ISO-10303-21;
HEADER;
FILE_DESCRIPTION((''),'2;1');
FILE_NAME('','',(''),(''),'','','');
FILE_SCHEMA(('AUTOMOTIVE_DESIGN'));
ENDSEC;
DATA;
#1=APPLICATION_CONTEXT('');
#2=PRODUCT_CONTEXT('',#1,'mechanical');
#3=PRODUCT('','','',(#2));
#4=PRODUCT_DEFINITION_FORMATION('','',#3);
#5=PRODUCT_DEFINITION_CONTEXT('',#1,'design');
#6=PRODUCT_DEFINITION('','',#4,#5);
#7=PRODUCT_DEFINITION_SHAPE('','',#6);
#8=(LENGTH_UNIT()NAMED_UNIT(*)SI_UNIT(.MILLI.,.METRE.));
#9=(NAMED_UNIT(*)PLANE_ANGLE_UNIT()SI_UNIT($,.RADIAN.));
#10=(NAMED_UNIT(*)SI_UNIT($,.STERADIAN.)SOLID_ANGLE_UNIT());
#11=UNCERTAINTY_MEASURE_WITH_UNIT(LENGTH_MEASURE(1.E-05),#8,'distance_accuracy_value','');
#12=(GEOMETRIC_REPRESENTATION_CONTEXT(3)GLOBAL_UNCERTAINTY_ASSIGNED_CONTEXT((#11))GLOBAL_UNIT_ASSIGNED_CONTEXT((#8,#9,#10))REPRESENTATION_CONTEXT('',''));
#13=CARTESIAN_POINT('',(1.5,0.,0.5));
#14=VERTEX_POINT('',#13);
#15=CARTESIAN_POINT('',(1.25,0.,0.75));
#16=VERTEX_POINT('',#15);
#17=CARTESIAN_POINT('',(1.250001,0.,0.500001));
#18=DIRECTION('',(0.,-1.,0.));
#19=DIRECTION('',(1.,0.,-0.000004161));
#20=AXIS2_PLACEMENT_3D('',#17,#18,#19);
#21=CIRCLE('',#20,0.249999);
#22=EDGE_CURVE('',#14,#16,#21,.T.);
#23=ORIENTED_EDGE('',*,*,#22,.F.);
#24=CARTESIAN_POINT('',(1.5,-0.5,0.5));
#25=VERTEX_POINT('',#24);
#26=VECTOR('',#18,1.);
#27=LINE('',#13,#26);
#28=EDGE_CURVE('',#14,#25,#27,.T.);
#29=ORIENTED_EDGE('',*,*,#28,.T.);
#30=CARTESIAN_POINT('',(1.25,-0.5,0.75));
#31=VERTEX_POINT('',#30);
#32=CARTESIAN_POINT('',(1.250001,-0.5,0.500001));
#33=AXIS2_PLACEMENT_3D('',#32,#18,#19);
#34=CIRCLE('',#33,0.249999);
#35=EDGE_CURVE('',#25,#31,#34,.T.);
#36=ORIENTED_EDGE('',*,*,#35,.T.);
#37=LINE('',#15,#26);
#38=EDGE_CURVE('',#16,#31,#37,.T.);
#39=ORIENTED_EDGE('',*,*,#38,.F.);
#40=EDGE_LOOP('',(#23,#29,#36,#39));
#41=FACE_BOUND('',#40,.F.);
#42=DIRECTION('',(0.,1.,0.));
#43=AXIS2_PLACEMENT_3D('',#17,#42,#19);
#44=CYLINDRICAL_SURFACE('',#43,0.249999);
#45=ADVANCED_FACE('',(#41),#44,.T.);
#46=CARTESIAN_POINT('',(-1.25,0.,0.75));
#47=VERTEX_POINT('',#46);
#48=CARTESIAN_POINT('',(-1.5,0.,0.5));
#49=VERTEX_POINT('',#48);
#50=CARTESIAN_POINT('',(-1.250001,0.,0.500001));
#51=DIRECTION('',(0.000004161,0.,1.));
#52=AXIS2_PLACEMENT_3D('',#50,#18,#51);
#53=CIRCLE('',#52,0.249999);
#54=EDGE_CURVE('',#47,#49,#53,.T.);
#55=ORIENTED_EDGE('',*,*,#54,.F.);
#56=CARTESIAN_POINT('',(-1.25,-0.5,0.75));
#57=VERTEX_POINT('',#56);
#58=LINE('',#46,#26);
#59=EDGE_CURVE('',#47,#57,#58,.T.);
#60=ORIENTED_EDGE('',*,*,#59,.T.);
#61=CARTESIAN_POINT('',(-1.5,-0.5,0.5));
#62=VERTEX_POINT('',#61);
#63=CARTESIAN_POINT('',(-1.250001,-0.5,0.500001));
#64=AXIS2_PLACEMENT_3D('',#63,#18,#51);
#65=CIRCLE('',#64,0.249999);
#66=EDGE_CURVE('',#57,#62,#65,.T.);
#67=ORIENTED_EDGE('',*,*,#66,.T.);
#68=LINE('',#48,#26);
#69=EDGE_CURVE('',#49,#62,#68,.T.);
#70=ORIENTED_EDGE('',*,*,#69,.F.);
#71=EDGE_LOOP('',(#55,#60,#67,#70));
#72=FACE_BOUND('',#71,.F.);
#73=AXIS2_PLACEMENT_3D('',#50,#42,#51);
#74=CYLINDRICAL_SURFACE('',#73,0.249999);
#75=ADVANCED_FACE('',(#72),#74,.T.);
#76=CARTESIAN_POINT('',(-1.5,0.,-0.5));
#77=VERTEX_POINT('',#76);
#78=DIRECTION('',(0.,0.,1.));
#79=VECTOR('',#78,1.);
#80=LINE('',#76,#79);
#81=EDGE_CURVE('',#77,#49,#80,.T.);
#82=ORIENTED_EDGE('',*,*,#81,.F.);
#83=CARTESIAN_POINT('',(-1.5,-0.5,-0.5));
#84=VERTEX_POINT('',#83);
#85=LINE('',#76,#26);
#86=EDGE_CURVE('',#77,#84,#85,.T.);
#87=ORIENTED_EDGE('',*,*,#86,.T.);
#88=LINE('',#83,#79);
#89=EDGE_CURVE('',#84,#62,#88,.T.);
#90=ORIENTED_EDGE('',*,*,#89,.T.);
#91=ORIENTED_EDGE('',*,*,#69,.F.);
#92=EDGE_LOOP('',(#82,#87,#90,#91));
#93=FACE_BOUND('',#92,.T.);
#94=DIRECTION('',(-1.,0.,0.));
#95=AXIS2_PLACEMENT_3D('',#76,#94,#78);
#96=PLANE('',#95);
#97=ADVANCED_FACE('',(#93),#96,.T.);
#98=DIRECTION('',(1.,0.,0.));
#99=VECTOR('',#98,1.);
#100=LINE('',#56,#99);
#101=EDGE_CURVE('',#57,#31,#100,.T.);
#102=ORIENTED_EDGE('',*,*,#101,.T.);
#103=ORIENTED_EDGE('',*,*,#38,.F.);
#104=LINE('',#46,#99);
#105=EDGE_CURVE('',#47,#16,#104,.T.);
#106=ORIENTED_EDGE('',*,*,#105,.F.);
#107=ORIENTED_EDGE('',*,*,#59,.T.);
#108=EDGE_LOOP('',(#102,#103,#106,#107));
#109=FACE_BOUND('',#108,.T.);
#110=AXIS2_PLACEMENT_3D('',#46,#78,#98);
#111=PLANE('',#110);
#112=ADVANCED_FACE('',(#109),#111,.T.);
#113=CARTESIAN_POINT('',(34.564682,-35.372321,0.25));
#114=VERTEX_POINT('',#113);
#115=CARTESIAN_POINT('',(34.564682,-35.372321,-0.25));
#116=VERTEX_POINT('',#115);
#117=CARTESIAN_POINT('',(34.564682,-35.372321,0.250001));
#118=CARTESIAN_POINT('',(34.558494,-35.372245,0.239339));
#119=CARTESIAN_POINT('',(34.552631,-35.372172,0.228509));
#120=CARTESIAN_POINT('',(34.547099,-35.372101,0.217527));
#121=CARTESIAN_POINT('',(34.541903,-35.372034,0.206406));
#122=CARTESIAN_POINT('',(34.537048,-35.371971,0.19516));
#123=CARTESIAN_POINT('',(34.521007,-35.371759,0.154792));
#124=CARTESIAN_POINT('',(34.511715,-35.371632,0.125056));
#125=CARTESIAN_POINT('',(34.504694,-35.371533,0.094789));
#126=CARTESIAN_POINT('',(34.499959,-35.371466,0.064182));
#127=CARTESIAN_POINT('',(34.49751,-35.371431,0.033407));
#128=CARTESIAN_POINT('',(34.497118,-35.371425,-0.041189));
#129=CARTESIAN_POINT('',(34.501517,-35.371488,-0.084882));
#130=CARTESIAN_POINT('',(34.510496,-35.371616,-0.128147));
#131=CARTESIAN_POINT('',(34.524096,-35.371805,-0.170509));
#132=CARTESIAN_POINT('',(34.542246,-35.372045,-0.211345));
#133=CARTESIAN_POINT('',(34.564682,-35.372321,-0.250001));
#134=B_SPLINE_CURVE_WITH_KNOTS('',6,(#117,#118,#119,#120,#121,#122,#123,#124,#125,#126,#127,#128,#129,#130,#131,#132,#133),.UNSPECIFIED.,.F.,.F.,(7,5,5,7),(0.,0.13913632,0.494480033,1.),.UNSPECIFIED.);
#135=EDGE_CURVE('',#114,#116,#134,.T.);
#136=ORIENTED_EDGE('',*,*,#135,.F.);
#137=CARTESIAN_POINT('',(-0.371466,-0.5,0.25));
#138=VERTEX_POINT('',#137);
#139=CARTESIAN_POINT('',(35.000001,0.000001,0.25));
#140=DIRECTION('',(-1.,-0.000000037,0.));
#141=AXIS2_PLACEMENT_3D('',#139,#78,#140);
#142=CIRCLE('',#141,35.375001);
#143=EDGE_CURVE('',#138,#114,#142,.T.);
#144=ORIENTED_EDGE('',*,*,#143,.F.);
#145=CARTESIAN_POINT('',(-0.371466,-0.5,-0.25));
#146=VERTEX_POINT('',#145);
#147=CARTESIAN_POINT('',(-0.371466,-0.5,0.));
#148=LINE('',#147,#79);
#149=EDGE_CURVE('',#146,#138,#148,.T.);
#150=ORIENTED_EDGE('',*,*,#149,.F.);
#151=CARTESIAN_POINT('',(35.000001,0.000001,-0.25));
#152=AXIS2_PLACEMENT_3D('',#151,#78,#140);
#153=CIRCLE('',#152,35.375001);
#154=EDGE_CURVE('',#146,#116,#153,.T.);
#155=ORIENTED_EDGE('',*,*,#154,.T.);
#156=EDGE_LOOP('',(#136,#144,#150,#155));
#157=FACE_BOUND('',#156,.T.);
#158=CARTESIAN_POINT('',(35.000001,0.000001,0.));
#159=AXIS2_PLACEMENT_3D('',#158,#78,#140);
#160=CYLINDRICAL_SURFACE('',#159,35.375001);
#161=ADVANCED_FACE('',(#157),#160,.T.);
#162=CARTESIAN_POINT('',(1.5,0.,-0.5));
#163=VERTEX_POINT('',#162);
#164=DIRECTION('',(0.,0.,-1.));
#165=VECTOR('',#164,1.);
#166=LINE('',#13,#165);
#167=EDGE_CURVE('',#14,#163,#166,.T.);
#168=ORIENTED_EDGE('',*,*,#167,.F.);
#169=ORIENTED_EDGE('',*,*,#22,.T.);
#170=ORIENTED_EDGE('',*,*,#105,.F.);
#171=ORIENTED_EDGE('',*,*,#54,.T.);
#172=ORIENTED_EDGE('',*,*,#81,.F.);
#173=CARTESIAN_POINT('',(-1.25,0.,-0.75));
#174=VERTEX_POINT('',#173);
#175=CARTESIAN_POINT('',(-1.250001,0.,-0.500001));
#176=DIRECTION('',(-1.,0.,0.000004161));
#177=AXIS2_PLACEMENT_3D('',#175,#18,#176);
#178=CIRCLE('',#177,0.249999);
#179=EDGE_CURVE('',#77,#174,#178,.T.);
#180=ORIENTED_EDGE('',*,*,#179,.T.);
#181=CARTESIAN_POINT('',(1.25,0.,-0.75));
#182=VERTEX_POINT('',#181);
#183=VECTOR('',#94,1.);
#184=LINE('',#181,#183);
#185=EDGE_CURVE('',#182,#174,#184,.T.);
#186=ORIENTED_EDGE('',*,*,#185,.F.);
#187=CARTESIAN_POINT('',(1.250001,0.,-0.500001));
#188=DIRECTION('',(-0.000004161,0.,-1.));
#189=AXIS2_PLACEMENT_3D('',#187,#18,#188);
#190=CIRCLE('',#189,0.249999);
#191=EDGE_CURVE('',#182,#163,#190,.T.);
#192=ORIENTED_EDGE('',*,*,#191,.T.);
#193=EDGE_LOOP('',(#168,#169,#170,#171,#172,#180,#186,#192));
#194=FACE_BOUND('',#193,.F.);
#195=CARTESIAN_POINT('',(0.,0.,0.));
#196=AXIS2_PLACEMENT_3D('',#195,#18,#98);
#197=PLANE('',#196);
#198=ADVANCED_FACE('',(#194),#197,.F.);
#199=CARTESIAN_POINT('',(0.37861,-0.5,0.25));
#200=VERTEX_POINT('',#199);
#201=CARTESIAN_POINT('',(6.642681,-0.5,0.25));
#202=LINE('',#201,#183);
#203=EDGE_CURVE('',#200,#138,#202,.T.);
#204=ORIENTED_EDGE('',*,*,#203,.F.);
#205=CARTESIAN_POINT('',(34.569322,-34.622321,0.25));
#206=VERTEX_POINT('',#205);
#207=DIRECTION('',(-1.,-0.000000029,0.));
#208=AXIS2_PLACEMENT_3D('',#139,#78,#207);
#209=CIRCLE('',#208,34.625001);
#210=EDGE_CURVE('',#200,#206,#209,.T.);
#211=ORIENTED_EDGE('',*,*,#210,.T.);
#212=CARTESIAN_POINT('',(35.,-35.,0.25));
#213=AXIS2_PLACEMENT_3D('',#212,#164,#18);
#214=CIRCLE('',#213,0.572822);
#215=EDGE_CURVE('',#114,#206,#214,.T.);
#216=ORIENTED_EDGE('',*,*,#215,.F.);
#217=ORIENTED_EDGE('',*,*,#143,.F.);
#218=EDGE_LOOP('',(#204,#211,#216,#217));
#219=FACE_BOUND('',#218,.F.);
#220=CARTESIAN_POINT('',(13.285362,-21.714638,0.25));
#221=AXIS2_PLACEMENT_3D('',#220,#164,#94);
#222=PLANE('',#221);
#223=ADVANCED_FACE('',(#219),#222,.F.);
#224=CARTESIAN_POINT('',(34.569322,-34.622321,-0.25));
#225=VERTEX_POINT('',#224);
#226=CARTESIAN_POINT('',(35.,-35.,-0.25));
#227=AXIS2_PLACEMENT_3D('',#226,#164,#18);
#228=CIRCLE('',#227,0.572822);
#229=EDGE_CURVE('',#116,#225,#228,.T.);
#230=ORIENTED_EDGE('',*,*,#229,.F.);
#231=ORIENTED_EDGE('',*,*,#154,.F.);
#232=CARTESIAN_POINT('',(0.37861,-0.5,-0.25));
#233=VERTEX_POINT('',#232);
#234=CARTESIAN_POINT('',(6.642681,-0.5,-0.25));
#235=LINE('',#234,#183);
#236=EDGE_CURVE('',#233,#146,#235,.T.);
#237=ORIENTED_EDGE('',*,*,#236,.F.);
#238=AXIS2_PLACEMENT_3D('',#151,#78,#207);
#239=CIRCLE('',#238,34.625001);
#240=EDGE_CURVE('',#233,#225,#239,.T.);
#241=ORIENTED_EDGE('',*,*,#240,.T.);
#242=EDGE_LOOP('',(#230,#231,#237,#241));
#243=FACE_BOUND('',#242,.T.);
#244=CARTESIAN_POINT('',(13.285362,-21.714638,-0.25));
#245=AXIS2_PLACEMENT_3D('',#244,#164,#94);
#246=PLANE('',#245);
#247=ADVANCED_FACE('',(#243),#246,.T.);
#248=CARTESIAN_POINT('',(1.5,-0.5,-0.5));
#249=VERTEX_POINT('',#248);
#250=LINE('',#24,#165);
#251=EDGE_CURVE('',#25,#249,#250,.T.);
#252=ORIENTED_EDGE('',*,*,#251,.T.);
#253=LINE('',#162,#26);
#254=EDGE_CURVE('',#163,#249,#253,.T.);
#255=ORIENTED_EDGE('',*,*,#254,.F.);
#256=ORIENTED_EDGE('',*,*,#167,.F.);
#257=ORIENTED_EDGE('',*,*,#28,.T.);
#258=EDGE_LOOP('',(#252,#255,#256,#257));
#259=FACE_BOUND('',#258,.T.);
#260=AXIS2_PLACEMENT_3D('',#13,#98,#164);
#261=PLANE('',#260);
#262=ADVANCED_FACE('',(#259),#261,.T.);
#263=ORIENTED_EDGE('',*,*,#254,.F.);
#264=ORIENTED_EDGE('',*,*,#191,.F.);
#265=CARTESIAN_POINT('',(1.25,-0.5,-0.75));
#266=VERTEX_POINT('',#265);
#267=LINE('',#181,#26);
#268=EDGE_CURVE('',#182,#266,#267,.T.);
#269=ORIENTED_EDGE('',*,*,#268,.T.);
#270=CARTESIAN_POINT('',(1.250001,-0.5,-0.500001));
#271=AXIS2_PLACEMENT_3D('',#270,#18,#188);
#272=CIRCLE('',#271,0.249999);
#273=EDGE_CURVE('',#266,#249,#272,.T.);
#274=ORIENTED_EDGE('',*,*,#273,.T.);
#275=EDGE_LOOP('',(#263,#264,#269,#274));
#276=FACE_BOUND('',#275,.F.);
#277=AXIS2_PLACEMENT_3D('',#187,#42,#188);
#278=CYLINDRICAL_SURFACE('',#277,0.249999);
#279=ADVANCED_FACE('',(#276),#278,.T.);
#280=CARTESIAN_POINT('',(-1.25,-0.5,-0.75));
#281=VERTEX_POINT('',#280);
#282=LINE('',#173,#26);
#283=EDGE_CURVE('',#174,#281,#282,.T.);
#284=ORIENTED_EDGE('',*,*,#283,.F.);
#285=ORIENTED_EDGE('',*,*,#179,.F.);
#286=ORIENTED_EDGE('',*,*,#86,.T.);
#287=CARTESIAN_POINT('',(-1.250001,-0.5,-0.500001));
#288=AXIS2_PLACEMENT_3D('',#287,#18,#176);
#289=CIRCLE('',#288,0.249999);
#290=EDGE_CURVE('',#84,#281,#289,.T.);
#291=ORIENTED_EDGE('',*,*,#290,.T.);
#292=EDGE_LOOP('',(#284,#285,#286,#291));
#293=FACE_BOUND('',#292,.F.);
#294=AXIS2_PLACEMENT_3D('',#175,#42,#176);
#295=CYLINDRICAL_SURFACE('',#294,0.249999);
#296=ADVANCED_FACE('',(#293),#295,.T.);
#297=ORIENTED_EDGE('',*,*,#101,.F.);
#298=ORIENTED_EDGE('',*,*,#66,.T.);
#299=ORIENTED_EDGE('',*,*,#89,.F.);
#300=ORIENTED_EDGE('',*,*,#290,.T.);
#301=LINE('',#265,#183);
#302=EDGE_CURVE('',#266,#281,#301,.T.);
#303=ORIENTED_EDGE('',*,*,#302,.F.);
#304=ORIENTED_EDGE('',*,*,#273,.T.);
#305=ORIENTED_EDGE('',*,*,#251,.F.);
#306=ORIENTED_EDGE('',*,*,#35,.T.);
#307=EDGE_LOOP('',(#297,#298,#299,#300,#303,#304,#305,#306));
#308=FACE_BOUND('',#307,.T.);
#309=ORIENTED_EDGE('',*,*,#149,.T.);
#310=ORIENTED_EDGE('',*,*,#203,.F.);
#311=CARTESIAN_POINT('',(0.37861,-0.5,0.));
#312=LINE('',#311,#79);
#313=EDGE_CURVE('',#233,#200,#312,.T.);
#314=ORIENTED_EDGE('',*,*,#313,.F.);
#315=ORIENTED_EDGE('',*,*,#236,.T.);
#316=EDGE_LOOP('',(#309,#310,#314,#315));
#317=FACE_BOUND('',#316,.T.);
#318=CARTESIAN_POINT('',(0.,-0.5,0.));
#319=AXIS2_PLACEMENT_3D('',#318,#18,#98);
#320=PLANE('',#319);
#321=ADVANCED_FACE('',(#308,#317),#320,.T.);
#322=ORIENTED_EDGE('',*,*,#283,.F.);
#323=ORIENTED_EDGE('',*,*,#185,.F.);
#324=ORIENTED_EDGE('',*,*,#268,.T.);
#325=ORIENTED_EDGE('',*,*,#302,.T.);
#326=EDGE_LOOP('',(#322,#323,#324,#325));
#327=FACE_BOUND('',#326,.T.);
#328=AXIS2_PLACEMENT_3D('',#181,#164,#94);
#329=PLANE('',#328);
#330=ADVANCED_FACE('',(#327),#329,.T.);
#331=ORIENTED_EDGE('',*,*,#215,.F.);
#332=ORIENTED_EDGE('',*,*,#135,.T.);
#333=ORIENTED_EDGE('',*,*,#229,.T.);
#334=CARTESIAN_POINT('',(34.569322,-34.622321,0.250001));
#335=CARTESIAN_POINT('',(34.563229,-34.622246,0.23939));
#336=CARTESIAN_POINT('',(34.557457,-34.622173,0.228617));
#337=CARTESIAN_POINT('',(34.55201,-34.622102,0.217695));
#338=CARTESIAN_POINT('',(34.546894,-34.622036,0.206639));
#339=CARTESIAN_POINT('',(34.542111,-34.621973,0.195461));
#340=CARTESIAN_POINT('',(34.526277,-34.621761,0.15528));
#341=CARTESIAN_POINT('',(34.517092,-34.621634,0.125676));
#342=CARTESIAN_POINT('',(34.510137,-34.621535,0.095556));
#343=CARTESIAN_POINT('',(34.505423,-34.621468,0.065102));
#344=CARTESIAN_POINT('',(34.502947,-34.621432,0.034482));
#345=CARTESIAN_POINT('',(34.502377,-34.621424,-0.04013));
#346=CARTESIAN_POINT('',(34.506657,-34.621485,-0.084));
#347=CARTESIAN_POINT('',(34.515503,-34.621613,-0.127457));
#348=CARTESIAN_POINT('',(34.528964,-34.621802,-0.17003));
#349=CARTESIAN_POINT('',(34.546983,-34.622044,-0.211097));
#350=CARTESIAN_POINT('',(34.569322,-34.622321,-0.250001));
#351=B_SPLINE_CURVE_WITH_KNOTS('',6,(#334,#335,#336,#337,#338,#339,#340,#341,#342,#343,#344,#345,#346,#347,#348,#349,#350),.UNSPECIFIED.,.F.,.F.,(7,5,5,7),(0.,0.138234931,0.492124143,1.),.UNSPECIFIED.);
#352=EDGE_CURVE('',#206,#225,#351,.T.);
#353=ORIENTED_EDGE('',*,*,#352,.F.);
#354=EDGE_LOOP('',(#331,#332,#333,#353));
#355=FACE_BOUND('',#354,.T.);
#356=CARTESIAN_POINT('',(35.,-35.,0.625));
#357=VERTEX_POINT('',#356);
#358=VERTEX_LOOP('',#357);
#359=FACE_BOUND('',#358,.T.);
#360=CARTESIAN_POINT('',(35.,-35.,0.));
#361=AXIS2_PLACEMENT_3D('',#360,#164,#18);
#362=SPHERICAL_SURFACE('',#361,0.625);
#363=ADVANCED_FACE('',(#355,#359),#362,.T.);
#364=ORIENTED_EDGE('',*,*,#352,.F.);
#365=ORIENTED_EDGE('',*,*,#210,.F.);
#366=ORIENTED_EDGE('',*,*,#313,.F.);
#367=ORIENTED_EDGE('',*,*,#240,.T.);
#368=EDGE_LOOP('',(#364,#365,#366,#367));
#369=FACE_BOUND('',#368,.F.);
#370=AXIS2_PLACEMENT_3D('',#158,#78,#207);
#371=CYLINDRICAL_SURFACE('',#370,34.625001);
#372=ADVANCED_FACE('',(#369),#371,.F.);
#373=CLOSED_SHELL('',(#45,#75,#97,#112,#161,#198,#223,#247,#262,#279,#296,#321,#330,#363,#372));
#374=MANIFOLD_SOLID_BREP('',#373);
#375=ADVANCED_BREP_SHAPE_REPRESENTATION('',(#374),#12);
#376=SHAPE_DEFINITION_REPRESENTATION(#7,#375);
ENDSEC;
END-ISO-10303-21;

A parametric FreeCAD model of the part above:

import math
import FreeCAD as App
import Part
import Sketcher

doc = App.newDocument("Part")
body = doc.addObject("PartDesign::Body", "Body")

sketch1 = body.newObject("Sketcher::SketchObject", "Sketch")
sketch1.AttachmentSupport = (doc.getObject("XY_Plane"), [""])
sketch1.MapMode = "FlatFace"
sketch1.addGeometry(Part.LineSegment(App.Vector(0.4, 0, 0), App.Vector(-0.4, 0, 0)), False)
sketch1.addGeometry(Part.ArcOfCircle(Part.Circle(App.Vector(35, 0, 0), App.Vector(0, 0, 1), 35.4), math.radians(-180), math.radians(-90)), False)
sketch1.addGeometry(Part.LineSegment(App.Vector(35, -35.4, 0), App.Vector(35, -34.6, 0)), False)
sketch1.addGeometry(Part.ArcOfCircle(Part.Circle(App.Vector(35, 0, 0), App.Vector(0, 0, 1), 34.6), math.radians(-180), math.radians(-90)), False)
sketch1.addConstraint(Sketcher.Constraint("Coincident", 0, 2, 1, 1))
sketch1.addConstraint(Sketcher.Constraint("Coincident", 1, 2, 2, 1))
sketch1.addConstraint(Sketcher.Constraint("Coincident", 2, 2, 3, 2))
sketch1.addConstraint(Sketcher.Constraint("Coincident", 3, 1, 0, 1))
sketch1.addConstraint(Sketcher.Constraint("Horizontal", 0))
sketch1.addConstraint(Sketcher.Constraint("Vertical", 2))
sketch1.addConstraint(Sketcher.Constraint("Coincident", 3, 3, 1, 3))
sketch1.addConstraint(Sketcher.Constraint("Symmetric", 0, 2, 3, 1, -1, 1))
sketch1.addConstraint(Sketcher.Constraint("PointOnObject", 1, 3, -1))
sketch1.addConstraint(Sketcher.Constraint("Vertical", 3, 3, 1, 2))
sketch1.addConstraint(Sketcher.Constraint("DistanceX", -1, 1, 1, 3, 35.000001))
sketch1.addConstraint(Sketcher.Constraint("Radius", 1, 35.375001))
pad1 = body.newObject("PartDesign::Pad", "Pad")
pad1.Profile = sketch1
pad1.Length = 0.5
pad1.Midplane = True

sketch2 = body.newObject("Sketcher::SketchObject", "Sketch001")
sketch2.AttachmentSupport = (doc.getObject("YZ_Plane"), [""])
sketch2.MapMode = "FlatFace"
sketch2.AttachmentOffset = App.Placement(App.Vector(0, 0, 35), App.Rotation())
sketch2.addGeometry(Part.ArcOfCircle(Part.Circle(App.Vector(-35, 0, 0), App.Vector(0, 0, 1), 0.6), math.radians(90), math.radians(270)), False)
sketch2.addGeometry(Part.LineSegment(App.Vector(-35, -0.6, 0), App.Vector(-35, 0.6, 0)), False)
sketch2.addGeometry(Part.LineSegment(App.Vector(-35, 0.6, 0), App.Vector(-35, -0.6, 0)), True)
sketch2.addConstraint(Sketcher.Constraint("Coincident", 0, 1, 1, 2))
sketch2.addConstraint(Sketcher.Constraint("Coincident", 1, 1, 0, 2))
sketch2.addConstraint(Sketcher.Constraint("Vertical", 1))
sketch2.addConstraint(Sketcher.Constraint("Vertical", 2))
sketch2.addConstraint(Sketcher.Constraint("Coincident", 2, 1, 0, 1))
sketch2.addConstraint(Sketcher.Constraint("PointOnObject", 0, 3, -1))
sketch2.addConstraint(Sketcher.Constraint("Equal", 1, 2))
sketch2.addConstraint(Sketcher.Constraint("DistanceX", 0, 3, -1, 1, 35.0))
sketch2.addConstraint(Sketcher.Constraint("DistanceX", 0, 1, -1, 1, 35.0))
sketch2.addConstraint(Sketcher.Constraint("Radius", 0, 0.625))
revolution = body.newObject("PartDesign::Revolution", "Revolution")
revolution.Profile = sketch2
revolution.ReferenceAxis = (sketch2, ["Axis0"])
revolution.Angle = 360

sketch3 = body.newObject("Sketcher::SketchObject", "Sketch002")
sketch3.AttachmentSupport = (doc.getObject("XZ_Plane"), [""])
sketch3.MapMode = "FlatFace"
sketch3.addGeometry(Part.ArcOfCircle(Part.Circle(App.Vector(-1.25, 0.5, 0), App.Vector(0, 0, 1), 0.25), math.radians(90), math.radians(180)), False)
sketch3.addGeometry(Part.LineSegment(App.Vector(-1.5, 0.5, 0), App.Vector(-1.5, -0.5, 0)), False)
sketch3.addGeometry(Part.ArcOfCircle(Part.Circle(App.Vector(-1.25, -0.5, 0), App.Vector(0, 0, 1), 0.25), math.radians(180), math.radians(270)), False)
sketch3.addGeometry(Part.LineSegment(App.Vector(-1.25, -0.75, 0), App.Vector(1.25, -0.75, 0)), False)
sketch3.addGeometry(Part.ArcOfCircle(Part.Circle(App.Vector(1.25, -0.5, 0), App.Vector(0, 0, 1), 0.25), math.radians(-90), math.radians(0)), False)
sketch3.addGeometry(Part.LineSegment(App.Vector(1.5, -0.5, 0), App.Vector(1.5, 0.5, 0)), False)
sketch3.addGeometry(Part.ArcOfCircle(Part.Circle(App.Vector(1.25, 0.5, 0), App.Vector(0, 0, 1), 0.25), math.radians(0), math.radians(90)), False)
sketch3.addGeometry(Part.LineSegment(App.Vector(1.25, 0.75, 0), App.Vector(-1.25, 0.75, 0)), False)
sketch3.addConstraint(Sketcher.Constraint("Coincident", 0, 2, 1, 1))
sketch3.addConstraint(Sketcher.Constraint("Coincident", 1, 2, 2, 1))
sketch3.addConstraint(Sketcher.Constraint("Coincident", 2, 2, 3, 1))
sketch3.addConstraint(Sketcher.Constraint("Coincident", 3, 2, 4, 1))
sketch3.addConstraint(Sketcher.Constraint("Coincident", 4, 2, 5, 1))
sketch3.addConstraint(Sketcher.Constraint("Coincident", 5, 2, 6, 1))
sketch3.addConstraint(Sketcher.Constraint("Coincident", 6, 2, 7, 1))
sketch3.addConstraint(Sketcher.Constraint("Coincident", 7, 2, 0, 1))
sketch3.addConstraint(Sketcher.Constraint("Vertical", 1))
sketch3.addConstraint(Sketcher.Constraint("Horizontal", 3))
sketch3.addConstraint(Sketcher.Constraint("Vertical", 5))
sketch3.addConstraint(Sketcher.Constraint("Horizontal", 7))
sketch3.addConstraint(Sketcher.Constraint("Equal", 0, 2))
sketch3.addConstraint(Sketcher.Constraint("Equal", 2, 4))
sketch3.addConstraint(Sketcher.Constraint("Equal", 4, 6))
sketch3.addConstraint(Sketcher.Constraint("Symmetric", 0, 3, 4, 3, -1, 1))
sketch3.addConstraint(Sketcher.Constraint("Horizontal", 6, 3, 0, 2))
sketch3.addConstraint(Sketcher.Constraint("Horizontal", 4, 3, 1, 2))
sketch3.addConstraint(Sketcher.Constraint("Horizontal", 1, 2, 4, 2))
sketch3.addConstraint(Sketcher.Constraint("Horizontal", 0, 2, 5, 2))
sketch3.addConstraint(Sketcher.Constraint("Vertical", 0, 3, 2, 2))
sketch3.addConstraint(Sketcher.Constraint("Vertical", 6, 3, 3, 2))
sketch3.addConstraint(Sketcher.Constraint("Vertical", 3, 2, 6, 2))
sketch3.addConstraint(Sketcher.Constraint("Vertical", 2, 2, 7, 2))
sketch3.addConstraint(Sketcher.Constraint("DistanceY", 1, 2, 1, 1, 1.0))
sketch3.addConstraint(Sketcher.Constraint("Radius", 0, 0.249999))
sketch3.addConstraint(Sketcher.Constraint("DistanceX", 3, 1, 3, 2, 2.5))
pad2 = body.newObject("PartDesign::Pad", "Pad001")
pad2.Profile = sketch3
pad2.Length = 0.5

doc.recompute()
